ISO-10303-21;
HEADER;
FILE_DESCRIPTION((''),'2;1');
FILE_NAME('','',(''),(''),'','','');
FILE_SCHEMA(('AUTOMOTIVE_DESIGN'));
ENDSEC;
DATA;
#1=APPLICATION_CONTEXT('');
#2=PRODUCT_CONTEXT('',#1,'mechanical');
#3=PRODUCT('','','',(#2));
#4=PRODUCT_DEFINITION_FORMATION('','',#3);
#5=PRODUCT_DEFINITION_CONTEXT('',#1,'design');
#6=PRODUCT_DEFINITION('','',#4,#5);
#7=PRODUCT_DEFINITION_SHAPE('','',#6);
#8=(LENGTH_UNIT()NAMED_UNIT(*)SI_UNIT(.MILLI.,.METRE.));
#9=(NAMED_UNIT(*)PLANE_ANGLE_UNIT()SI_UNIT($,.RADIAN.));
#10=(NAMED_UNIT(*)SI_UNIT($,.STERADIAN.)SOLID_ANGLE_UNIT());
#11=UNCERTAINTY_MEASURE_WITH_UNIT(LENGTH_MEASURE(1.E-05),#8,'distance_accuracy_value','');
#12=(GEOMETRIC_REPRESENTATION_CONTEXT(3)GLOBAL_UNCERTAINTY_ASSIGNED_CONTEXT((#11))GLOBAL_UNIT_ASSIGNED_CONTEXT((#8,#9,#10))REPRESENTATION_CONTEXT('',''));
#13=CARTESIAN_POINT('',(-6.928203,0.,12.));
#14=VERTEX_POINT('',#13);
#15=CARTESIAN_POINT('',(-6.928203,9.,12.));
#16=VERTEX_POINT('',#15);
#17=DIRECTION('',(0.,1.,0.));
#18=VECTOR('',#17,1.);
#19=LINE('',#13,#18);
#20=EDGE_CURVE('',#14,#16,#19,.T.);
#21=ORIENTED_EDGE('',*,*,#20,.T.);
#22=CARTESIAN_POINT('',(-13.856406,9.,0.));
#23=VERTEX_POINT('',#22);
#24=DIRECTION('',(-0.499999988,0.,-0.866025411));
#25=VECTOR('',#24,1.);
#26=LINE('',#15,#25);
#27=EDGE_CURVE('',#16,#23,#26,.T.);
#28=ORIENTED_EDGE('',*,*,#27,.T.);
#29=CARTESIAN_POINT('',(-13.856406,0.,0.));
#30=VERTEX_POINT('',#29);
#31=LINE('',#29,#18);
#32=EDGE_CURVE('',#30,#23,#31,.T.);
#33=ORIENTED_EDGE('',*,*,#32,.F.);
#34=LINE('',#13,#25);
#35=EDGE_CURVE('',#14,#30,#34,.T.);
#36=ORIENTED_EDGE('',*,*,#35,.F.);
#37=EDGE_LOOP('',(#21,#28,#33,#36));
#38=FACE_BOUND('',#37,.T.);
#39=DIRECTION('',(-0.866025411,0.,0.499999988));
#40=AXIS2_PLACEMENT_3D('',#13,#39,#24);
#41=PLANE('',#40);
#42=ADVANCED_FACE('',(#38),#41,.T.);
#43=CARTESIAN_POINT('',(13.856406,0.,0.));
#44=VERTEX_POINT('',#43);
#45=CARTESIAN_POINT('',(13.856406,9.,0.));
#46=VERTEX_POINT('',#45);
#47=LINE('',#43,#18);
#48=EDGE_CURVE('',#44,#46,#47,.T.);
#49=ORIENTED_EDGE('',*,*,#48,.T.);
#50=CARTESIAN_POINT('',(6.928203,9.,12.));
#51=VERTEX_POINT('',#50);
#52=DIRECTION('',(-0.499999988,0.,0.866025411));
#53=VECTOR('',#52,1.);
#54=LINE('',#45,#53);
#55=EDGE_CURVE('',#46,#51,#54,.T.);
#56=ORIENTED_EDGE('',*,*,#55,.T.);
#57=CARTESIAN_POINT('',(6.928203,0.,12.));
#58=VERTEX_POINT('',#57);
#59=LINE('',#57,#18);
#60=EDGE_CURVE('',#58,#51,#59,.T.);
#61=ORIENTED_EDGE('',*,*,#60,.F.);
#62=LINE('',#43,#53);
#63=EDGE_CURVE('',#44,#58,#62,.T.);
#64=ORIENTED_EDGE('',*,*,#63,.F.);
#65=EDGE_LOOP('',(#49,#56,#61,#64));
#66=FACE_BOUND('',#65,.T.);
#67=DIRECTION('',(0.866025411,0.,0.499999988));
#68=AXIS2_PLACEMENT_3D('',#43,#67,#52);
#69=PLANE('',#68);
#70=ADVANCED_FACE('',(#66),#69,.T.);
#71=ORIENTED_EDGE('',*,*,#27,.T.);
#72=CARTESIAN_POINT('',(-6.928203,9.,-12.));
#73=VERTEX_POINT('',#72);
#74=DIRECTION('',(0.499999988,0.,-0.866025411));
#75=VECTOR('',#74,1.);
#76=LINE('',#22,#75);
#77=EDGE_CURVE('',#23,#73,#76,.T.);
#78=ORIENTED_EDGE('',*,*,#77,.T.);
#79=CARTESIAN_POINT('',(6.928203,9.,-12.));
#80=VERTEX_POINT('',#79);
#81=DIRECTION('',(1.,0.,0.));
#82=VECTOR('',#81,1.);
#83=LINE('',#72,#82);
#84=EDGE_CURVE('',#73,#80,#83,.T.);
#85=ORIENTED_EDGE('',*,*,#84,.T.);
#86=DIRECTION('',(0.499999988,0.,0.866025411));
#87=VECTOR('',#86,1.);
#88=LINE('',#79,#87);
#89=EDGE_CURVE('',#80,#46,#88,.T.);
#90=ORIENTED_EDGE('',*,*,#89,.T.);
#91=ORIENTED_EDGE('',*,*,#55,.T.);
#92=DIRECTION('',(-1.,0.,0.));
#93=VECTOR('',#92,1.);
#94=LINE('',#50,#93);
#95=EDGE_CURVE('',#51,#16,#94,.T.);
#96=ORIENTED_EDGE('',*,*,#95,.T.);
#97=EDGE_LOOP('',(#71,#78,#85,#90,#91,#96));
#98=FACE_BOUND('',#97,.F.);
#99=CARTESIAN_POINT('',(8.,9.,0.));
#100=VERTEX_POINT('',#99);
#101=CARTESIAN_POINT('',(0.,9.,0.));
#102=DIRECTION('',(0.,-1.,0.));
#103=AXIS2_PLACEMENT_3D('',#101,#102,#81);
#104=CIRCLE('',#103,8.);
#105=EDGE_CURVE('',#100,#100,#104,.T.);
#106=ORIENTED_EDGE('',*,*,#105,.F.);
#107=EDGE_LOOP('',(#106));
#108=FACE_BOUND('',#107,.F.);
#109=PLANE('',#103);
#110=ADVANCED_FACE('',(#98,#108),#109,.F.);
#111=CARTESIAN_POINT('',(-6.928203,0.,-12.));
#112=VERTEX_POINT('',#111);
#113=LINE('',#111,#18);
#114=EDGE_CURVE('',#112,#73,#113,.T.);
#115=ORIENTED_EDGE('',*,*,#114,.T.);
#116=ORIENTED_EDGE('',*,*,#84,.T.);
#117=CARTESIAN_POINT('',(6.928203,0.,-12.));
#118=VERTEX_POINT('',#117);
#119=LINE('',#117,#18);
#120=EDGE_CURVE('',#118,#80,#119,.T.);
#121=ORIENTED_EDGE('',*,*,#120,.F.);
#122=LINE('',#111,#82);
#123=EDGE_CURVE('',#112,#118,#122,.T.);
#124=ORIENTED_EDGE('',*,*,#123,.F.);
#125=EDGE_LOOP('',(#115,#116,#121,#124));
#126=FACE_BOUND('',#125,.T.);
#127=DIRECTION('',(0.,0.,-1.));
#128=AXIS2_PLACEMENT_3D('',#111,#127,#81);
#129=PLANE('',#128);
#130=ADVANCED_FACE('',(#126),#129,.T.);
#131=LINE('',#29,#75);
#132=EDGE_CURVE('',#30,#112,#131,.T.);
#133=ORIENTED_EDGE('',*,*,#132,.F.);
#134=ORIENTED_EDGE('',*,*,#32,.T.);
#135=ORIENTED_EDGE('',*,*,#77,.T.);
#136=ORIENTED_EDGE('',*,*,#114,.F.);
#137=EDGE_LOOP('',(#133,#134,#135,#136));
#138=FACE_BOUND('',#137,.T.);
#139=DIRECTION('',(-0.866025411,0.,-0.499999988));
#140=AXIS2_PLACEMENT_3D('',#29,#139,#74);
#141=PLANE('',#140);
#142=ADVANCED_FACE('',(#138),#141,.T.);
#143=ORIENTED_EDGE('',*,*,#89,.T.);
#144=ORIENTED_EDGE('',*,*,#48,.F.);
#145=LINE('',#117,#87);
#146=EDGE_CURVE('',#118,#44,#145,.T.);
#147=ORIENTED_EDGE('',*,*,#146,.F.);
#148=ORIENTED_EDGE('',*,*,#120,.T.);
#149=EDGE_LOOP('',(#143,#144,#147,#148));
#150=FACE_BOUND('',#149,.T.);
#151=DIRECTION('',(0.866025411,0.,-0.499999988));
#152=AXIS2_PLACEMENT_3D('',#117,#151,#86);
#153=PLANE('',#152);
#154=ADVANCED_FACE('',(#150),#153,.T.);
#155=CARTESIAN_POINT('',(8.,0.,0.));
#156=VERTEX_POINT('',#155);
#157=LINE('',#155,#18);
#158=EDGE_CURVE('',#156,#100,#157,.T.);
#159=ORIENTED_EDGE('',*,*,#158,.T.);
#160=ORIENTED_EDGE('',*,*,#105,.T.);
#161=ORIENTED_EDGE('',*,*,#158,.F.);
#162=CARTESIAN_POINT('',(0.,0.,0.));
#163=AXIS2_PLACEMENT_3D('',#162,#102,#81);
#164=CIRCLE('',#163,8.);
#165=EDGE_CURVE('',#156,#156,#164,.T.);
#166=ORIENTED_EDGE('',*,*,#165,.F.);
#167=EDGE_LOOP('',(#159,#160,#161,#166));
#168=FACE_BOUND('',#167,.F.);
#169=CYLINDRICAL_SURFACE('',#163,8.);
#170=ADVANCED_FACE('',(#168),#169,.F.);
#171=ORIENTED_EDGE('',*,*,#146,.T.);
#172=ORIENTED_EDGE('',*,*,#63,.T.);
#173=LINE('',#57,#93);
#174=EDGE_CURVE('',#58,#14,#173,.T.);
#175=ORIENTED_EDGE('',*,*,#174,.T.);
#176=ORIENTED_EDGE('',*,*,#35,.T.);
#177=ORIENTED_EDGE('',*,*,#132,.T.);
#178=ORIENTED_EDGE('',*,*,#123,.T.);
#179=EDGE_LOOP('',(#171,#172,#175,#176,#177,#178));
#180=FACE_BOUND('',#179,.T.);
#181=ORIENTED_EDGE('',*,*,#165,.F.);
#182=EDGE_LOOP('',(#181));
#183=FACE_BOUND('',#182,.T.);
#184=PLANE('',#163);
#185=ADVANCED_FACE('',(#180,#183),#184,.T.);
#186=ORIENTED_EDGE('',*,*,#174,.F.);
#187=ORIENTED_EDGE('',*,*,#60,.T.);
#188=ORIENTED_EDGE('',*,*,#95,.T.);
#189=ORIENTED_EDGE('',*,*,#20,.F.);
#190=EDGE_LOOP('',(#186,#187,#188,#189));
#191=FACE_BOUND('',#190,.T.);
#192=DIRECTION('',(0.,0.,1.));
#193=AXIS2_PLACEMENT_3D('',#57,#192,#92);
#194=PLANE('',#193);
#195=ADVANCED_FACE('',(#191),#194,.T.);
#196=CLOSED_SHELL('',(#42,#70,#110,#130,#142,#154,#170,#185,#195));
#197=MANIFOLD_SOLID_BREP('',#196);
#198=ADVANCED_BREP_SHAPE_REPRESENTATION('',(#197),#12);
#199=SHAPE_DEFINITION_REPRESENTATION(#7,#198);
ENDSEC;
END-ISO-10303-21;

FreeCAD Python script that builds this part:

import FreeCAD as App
import Part
import Sketcher

V = App.Vector
Q = App.Units.Quantity


def add_polygon(sketch, points):
    """Adds a closed chain of lines whose ends are joined by coincident constraints."""
    first, n = sketch.GeometryCount, len(points)
    for a, b in zip(points, points[1:] + points[:1]):
        sketch.addGeometry(Part.LineSegment(App.Vector(*a, 0), App.Vector(*b, 0)), False)
    for i in range(n):
        sketch.addConstraint(Sketcher.Constraint("Coincident", first + i, 2, first + (i + 1) % n, 1))

doc = App.newDocument("Part")
body = doc.addObject("PartDesign::Body", "Body")

# Sketch on XZ plane
sketch1 = body.newObject("Sketcher::SketchObject", "Sketch")
sketch1.AttachmentSupport = (doc.getObject("XZ_Plane"), [""])
sketch1.MapMode = "FlatFace"
add_polygon(sketch1, [(7, 12), (-7, 12), (-14, 0), (-7, -12), (7, -12), (14, 0)])  # lines 0-5
sketch1.addConstraint([
    Sketcher.Constraint("Horizontal", 0),
    Sketcher.Constraint("Horizontal", 3),
    Sketcher.Constraint("Symmetric", 0, 2, 3, 2, -1, 1),
    Sketcher.Constraint("Symmetric", 1, 2, 4, 2, -1, 1),
    Sketcher.Constraint("PointOnObject", 1, 2, -1),
    Sketcher.Constraint("Parallel", 2, 5),
    Sketcher.Constraint("Vertical", 0, 2, 2, 2),
    Sketcher.Constraint("Angle", 1, Q("-119.999999 deg")),
    Sketcher.Constraint("DistanceY", -1, 1, 0, 2, 12.0),
    Sketcher.Constraint("DistanceX", 0, 2, 0, 1, 13.856406),
])
pad1 = body.newObject("PartDesign::Pad", "Pad")
pad1.Profile = sketch1
pad1.Length = 9
pad1.Reversed = True

# Sketch on XZ plane
sketch2 = body.newObject("Sketcher::SketchObject", "Sketch001")
sketch2.AttachmentSupport = (doc.getObject("XZ_Plane"), [""])
sketch2.MapMode = "FlatFace"
sketch2.addGeometry(Part.Circle(V(0, 0, 0), V(0, 0, 1), 8), False)
sketch2.addConstraint([
    Sketcher.Constraint("Coincident", 0, 3, -1, 1),
    Sketcher.Constraint("Diameter", 0, 16.0),
])
pocket1 = body.newObject("PartDesign::Pocket", "Pocket")
pocket1.Profile = sketch2
pocket1.Type = "ThroughAll"

doc.recompute()
